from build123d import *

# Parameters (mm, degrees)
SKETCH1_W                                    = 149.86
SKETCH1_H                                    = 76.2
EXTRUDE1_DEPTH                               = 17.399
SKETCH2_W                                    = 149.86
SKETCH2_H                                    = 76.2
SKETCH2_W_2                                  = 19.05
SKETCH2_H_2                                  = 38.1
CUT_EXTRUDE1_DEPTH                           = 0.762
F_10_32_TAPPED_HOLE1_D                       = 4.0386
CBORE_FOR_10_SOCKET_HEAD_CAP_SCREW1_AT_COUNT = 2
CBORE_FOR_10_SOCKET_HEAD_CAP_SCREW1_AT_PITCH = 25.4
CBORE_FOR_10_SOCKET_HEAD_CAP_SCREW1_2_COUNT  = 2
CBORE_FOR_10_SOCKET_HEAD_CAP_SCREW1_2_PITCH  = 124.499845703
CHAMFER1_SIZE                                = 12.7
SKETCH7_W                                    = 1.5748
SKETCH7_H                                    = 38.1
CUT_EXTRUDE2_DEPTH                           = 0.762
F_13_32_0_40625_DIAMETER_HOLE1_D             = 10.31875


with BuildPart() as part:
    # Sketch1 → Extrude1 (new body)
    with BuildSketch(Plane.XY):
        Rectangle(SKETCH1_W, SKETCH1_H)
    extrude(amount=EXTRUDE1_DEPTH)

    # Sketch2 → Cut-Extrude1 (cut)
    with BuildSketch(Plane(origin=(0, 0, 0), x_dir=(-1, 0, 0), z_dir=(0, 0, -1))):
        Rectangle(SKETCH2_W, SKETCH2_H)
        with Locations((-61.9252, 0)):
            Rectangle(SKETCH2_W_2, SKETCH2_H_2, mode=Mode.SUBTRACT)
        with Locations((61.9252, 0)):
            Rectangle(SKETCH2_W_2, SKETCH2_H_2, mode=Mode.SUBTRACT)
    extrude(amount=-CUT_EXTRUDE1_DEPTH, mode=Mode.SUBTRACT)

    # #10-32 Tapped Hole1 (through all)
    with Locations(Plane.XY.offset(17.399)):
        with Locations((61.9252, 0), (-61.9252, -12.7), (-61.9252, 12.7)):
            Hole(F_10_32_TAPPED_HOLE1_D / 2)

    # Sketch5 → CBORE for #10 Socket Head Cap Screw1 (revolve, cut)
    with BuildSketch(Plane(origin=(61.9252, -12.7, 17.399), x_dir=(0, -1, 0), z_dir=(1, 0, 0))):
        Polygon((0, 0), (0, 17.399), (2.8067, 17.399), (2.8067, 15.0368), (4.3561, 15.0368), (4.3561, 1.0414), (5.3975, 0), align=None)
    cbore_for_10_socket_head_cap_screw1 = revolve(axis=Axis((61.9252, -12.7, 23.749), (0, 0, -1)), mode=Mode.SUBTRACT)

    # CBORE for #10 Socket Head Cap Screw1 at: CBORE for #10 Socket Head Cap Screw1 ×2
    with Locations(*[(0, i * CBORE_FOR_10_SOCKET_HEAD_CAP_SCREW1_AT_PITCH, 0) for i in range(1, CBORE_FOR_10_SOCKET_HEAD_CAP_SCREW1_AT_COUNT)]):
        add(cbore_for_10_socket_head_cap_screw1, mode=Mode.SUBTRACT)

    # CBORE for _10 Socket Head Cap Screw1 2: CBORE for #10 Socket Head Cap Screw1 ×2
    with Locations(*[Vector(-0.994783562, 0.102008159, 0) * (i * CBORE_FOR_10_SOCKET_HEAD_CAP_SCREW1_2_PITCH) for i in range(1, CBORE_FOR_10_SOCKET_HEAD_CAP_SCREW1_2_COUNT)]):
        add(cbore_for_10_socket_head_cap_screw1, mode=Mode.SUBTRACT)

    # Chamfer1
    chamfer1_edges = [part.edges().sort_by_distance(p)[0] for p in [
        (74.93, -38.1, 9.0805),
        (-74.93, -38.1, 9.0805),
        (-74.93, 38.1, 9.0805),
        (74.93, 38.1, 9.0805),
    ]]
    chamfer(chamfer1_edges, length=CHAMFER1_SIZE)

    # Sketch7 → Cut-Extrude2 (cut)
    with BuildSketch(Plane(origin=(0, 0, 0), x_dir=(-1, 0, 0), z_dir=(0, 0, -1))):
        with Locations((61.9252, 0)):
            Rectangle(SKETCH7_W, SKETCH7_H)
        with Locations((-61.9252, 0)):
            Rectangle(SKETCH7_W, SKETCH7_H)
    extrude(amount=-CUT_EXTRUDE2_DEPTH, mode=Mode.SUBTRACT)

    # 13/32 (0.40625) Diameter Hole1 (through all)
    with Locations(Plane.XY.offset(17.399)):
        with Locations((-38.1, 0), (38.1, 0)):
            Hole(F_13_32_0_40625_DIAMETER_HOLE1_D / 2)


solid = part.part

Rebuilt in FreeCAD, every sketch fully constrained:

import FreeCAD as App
import Part
import Sketcher
from FreeCAD import Vector
Q = App.Units.Quantity


def edges_at(feature, points):
    """Names of the edges that pass closest to the given points."""
    edges = feature.Shape.Edges
    near = lambda p: min(range(len(edges)), key=lambda i: edges[i].distToShape(Part.Vertex(*p))[0])
    return sorted({f"Edge{near(p) + 1}" for p in points})

doc = App.newDocument("Part")
body = doc.addObject("PartDesign::Body", "Body")

# Sketch on XY plane
sketch1 = doc.addObject("Sketcher::SketchObject", "Sketch")
body.addObject(sketch1)
sketch1.AttachmentSupport = (doc.XY_Plane, [""])
sketch1.MapMode = "FlatFace"
sketch1.addGeometry([
    Part.LineSegment(Vector(-75, 38, 0), Vector(-75, -38, 0)),
    Part.LineSegment(Vector(-75, -38, 0), Vector(75, -38, 0)),
    Part.LineSegment(Vector(75, -38, 0), Vector(75, 38, 0)),
    Part.LineSegment(Vector(75, 38, 0), Vector(-75, 38, 0)),
], False)
sketch1.addConstraint([
    Sketcher.Constraint("Coincident", 0, 2, 1, 1),
    Sketcher.Constraint("Coincident", 1, 2, 2, 1),
    Sketcher.Constraint("Coincident", 2, 2, 3, 1),
    Sketcher.Constraint("Coincident", 3, 2, 0, 1),
    Sketcher.Constraint("Vertical", 0),
    Sketcher.Constraint("Horizontal", 1),
    Sketcher.Constraint("Vertical", 2),
    Sketcher.Constraint("Horizontal", 3),
    Sketcher.Constraint("Symmetric", 0, 2, 2, 2, -1, 1),
    Sketcher.Constraint("DistanceY", 0, 2, 0, 1, Q("3 in")),
    Sketcher.Constraint("DistanceX", 1, 1, 1, 2, Q("5.9 in")),
])
pad1 = doc.addObject("PartDesign::Pad", "Pad")
body.addObject(pad1)
pad1.Profile = sketch1
pad1.Length = Q("0.685 in")

# Sketch on XY plane
sketch2 = doc.addObject("Sketcher::SketchObject", "Sketch001")
body.addObject(sketch2)
sketch2.AttachmentSupport = (doc.XY_Plane, [""])
sketch2.MapMode = "FlatFace"
sketch2.addGeometry([
    Part.LineSegment(Vector(75, 38, 0), Vector(75, -38, 0)),  # 0
    Part.LineSegment(Vector(75, -38, 0), Vector(-75, -38, 0)),  # 1
    Part.LineSegment(Vector(-75, -38, 0), Vector(-75, 38, 0)),  # 2
    Part.LineSegment(Vector(-75, 38, 0), Vector(75, 38, 0)),  # 3
    Part.LineSegment(Vector(52, -19, 0), Vector(71, -19, 0)),  # 4
    Part.LineSegment(Vector(71, -19, 0), Vector(71, 19, 0)),  # 5
    Part.LineSegment(Vector(71, 19, 0), Vector(52, 19, 0)),  # 6
    Part.LineSegment(Vector(52, 19, 0), Vector(52, -19, 0)),  # 7
    Part.LineSegment(Vector(-71, -19, 0), Vector(-52, -19, 0)),  # 8
    Part.LineSegment(Vector(-52, -19, 0), Vector(-52, 19, 0)),  # 9
    Part.LineSegment(Vector(-52, 19, 0), Vector(-71, 19, 0)),  # 10
    Part.LineSegment(Vector(-71, 19, 0), Vector(-71, -19, 0)),  # 11
], False)
sketch2.addConstraint([
    Sketcher.Constraint("Coincident", 0, 2, 1, 1),
    Sketcher.Constraint("Coincident", 1, 2, 2, 1),
    Sketcher.Constraint("Coincident", 2, 2, 3, 1),
    Sketcher.Constraint("Coincident", 3, 2, 0, 1),
    Sketcher.Constraint("Coincident", 4, 2, 5, 1),
    Sketcher.Constraint("Coincident", 5, 2, 6, 1),
    Sketcher.Constraint("Coincident", 6, 2, 7, 1),
    Sketcher.Constraint("Coincident", 7, 2, 4, 1),
    Sketcher.Constraint("Coincident", 8, 2, 9, 1),
    Sketcher.Constraint("Coincident", 9, 2, 10, 1),
    Sketcher.Constraint("Coincident", 10, 2, 11, 1),
    Sketcher.Constraint("Coincident", 11, 2, 8, 1),
    Sketcher.Constraint("Vertical", 0),
    Sketcher.Constraint("Horizontal", 1),
    Sketcher.Constraint("Vertical", 2),
    Sketcher.Constraint("Horizontal", 3),
    Sketcher.Constraint("Horizontal", 4),
    Sketcher.Constraint("Vertical", 5),
    Sketcher.Constraint("Horizontal", 6),
    Sketcher.Constraint("Vertical", 7),
    Sketcher.Constraint("Horizontal", 8),
    Sketcher.Constraint("Vertical", 9),
    Sketcher.Constraint("Horizontal", 10),
    Sketcher.Constraint("Vertical", 11),
    Sketcher.Constraint("Symmetric", 0, 2, 2, 2, -1, 1),
    Sketcher.Constraint("Symmetric", 6, 2, 8, 2, -1, 1),
    Sketcher.Constraint("Symmetric", 4, 2, 10, 2, -1, 1),
    Sketcher.Constraint("Horizontal", 7, 2, 8, 2),
    Sketcher.Constraint("DistanceY", 0, 2, 0, 1, Q("3 in")),
    Sketcher.Constraint("DistanceX", 1, 2, 1, 1, Q("5.9 in")),
    Sketcher.Constraint("DistanceY", 5, 1, 5, 2, Q("1.5 in")),
    Sketcher.Constraint("DistanceX", 4, 1, 4, 2, Q("0.75 in")),
    Sketcher.Constraint("DistanceX", -1, 1, 4, 2, Q("2.813 in")),
])
pocket1 = doc.addObject("PartDesign::Pocket", "Pocket")
body.addObject(pocket1)
pocket1.Profile = sketch2
pocket1.Length = Q("0.03 in")
pocket1.Reversed = True

# Sketch on XY plane
sketch3 = doc.addObject("Sketcher::SketchObject", "Sketch002")
body.addObject(sketch3)
sketch3.AttachmentSupport = (doc.XY_Plane, [""])
sketch3.MapMode = "FlatFace"
sketch3.AttachmentOffset = App.Placement(Vector(0, 0, 0.685 * 25.4), App.Rotation())
sketch3.addGeometry([
    Part.Circle(Vector(61.9, 0, 0), Vector(0, 0, 1), 2),
    Part.Circle(Vector(-61.9, -12.7, 0), Vector(0, 0, 1), 2),
    Part.Circle(Vector(-61.9, 12.7, 0), Vector(0, 0, 1), 2),
], False)
sketch3.addConstraint([
    Sketcher.Constraint("Equal", 0, 1),
    Sketcher.Constraint("Equal", 1, 2),
    Sketcher.Constraint("Symmetric", 1, 3, 2, 3, -1),
    Sketcher.Constraint("PointOnObject", 0, 3, -1),
    Sketcher.Constraint("Diameter", 0, Q("0.159 in")),
    Sketcher.Constraint("DistanceY", 1, 3, 2, 3, Q("1 in")),
    Sketcher.Constraint("DistanceX", -1, 1, 0, 3, Q("2.438 in")),
    Sketcher.Constraint("DistanceX", 1, 3, -1, 1, Q("2.438 in")),
])
doc.recompute()
hole = doc.addObject("PartDesign::Hole", "Hole")
body.addObject(hole)
hole.Profile = sketch3
hole.ThreadType = "None"
hole.Diameter = Q("0.159 in")
hole.DepthType = "ThroughAll"

# Sketch on YZ plane
sketch4 = doc.addObject("Sketcher::SketchObject", "Sketch003")
body.addObject(sketch4)
sketch4.AttachmentSupport = (doc.YZ_Plane, [""])
sketch4.MapMode = "FlatFace"
sketch4.AttachmentOffset = App.Placement(Vector(0, 0, 2.438 * 25.4), App.Rotation())
sketch4.addGeometry([
    Part.LineSegment(Vector(-12.7, 0, 0), Vector(-12.7, 17.4, 0)),  # 0
    Part.LineSegment(Vector(-12.7, 17.4, 0), Vector(-18.1, 17.4, 0)),  # 1
    Part.LineSegment(Vector(-18.1, 17.4, 0), Vector(-17.1, 16.4, 0)),  # 2
    Part.LineSegment(Vector(-17.1, 16.4, 0), Vector(-17.1, 2.4, 0)),  # 3
    Part.LineSegment(Vector(-17.1, 2.4, 0), Vector(-15.5, 2.4, 0)),  # 4
    Part.LineSegment(Vector(-15.5, 2.4, 0), Vector(-15.5, 0, 0)),  # 5
    Part.LineSegment(Vector(-15.5, 0, 0), Vector(-12.7, 0, 0)),  # 6
], False)
sketch4.addGeometry(Part.LineSegment(Vector(-12.7, 17.4, 0), Vector(-12.7, 0, 0)), True)  # axis
sketch4.addConstraint([
    Sketcher.Constraint("Coincident", 0, 2, 1, 1),
    Sketcher.Constraint("Coincident", 1, 2, 2, 1),
    Sketcher.Constraint("Coincident", 2, 2, 3, 1),
    Sketcher.Constraint("Coincident", 3, 2, 4, 1),
    Sketcher.Constraint("Coincident", 4, 2, 5, 1),
    Sketcher.Constraint("Coincident", 5, 2, 6, 1),
    Sketcher.Constraint("Coincident", 6, 2, 0, 1),
    Sketcher.Constraint("Vertical", 0),
    Sketcher.Constraint("Horizontal", 1),
    Sketcher.Constraint("Vertical", 3),
    Sketcher.Constraint("Horizontal", 4),
    Sketcher.Constraint("Vertical", 5),
    Sketcher.Constraint("Horizontal", 6),
    Sketcher.Constraint("Vertical", 7),
    Sketcher.Constraint("Coincident", 7, 1, 0, 2),
    Sketcher.Constraint("PointOnObject", 5, 2, -1),
    Sketcher.Constraint("PointOnObject", 7, 2, -1),
    Sketcher.Constraint("Angle", 2, Q("-45 deg")),
    Sketcher.Constraint("DistanceX", 0, 2, -1, 1, Q("0.5 in")),
    Sketcher.Constraint("DistanceX", 4, 1, 4, 2, Q("0.061 in")),
    Sketcher.Constraint("DistanceY", 0, 1, 0, 2, Q("0.685 in")),
    Sketcher.Constraint("DistanceY", 3, 2, 3, 1, Q("0.551 in")),
    Sketcher.Constraint("DistanceY", 5, 2, 5, 1, Q("0.093 in")),
    Sketcher.Constraint("DistanceX", 1, 2, 1, 1, Q("0.2125 in")),
])
groove = doc.addObject("PartDesign::Groove", "Groove")
body.addObject(groove)
groove.Profile = sketch4
groove.ReferenceAxis = (sketch4, ["Axis0"])
groove.Angle = 360
doc.recompute()

linearpattern = doc.addObject("PartDesign::LinearPattern", "LinearPattern")
body.addObject(linearpattern)
linearpattern.Originals = [groove]
linearpattern.Direction = (doc.Y_Axis, [""])
linearpattern.Mode = "offset"
linearpattern.Offset = Q("1 in")
linearpattern.Occurrences = 2
body.Tip = linearpattern
doc.recompute()

datumline = doc.addObject("PartDesign::Line", "DatumLine")
body.addObject(datumline)
datumline.Placement = App.Placement(Vector(0, 0, 0), App.Rotation(Vector(0, 0, 1), Vector(-0.994783562, 0.102008159, 0)))
linearpattern2 = doc.addObject("PartDesign::LinearPattern", "LinearPattern001")
body.addObject(linearpattern2)
linearpattern2.Originals = [groove]
linearpattern2.Direction = (datumline, [""])
linearpattern2.Mode = "offset"
linearpattern2.Offset = 124.499846
linearpattern2.Occurrences = 2
body.Tip = linearpattern2
doc.recompute()

chamfer = doc.addObject("PartDesign::Chamfer", "Chamfer")
body.addObject(chamfer)
chamfer.Base = (linearpattern2, edges_at(linearpattern2, [
    (74.93, -38.1, 9.081),
    (-74.93, -38.1, 9.081),
    (-74.93, 38.1, 9.081),
    (74.93, 38.1, 9.081),
]))
chamfer.Size = Q("0.5 in")

# Sketch on XY plane
sketch5 = doc.addObject("Sketcher::SketchObject", "Sketch004")
body.addObject(sketch5)
sketch5.AttachmentSupport = (doc.XY_Plane, [""])
sketch5.MapMode = "FlatFace"
sketch5.addGeometry([
    Part.LineSegment(Vector(-61.1, 19.1, 0), Vector(-61.1, -19.1, 0)),  # 0
    Part.LineSegment(Vector(-61.1, -19.1, 0), Vector(-62.7, -19.1, 0)),  # 1
    Part.LineSegment(Vector(-62.7, -19.1, 0), Vector(-62.7, 19.1, 0)),  # 2
    Part.LineSegment(Vector(-62.7, 19.1, 0), Vector(-61.1, 19.1, 0)),  # 3
    Part.LineSegment(Vector(62.7, 19.1, 0), Vector(62.7, -19.1, 0)),  # 4
    Part.LineSegment(Vector(62.7, -19.1, 0), Vector(61.1, -19.1, 0)),  # 5
    Part.LineSegment(Vector(61.1, -19.1, 0), Vector(61.1, 19.1, 0)),  # 6
    Part.LineSegment(Vector(61.1, 19.1, 0), Vector(62.7, 19.1, 0)),  # 7
], False)
sketch5.addConstraint([
    Sketcher.Constraint("Coincident", 0, 2, 1, 1),
    Sketcher.Constraint("Coincident", 1, 2, 2, 1),
    Sketcher.Constraint("Coincident", 2, 2, 3, 1),
    Sketcher.Constraint("Coincident", 3, 2, 0, 1),
    Sketcher.Constraint("Coincident", 4, 2, 5, 1),
    Sketcher.Constraint("Coincident", 5, 2, 6, 1),
    Sketcher.Constraint("Coincident", 6, 2, 7, 1),
    Sketcher.Constraint("Coincident", 7, 2, 4, 1),
    Sketcher.Constraint("Vertical", 0),
    Sketcher.Constraint("Horizontal", 1),
    Sketcher.Constraint("Vertical", 2),
    Sketcher.Constraint("Horizontal", 3),
    Sketcher.Constraint("Vertical", 4),
    Sketcher.Constraint("Horizontal", 5),
    Sketcher.Constraint("Vertical", 6),
    Sketcher.Constraint("Horizontal", 7),
    Sketcher.Constraint("Symmetric", 2, 2, 4, 2, -1, 1),
    Sketcher.Constraint("Symmetric", 0, 2, 6, 2, -1, 1),
    Sketcher.Constraint("Horizontal", 1, 2, 4, 2),
    Sketcher.Constraint("DistanceY", 0, 2, 0, 1, Q("1.5 in")),
    Sketcher.Constraint("DistanceX", 1, 2, 1, 1, Q("0.062 in")),
    Sketcher.Constraint("DistanceX", 0, 2, -1, 1, Q("2.407 in")),
])
pocket2 = doc.addObject("PartDesign::Pocket", "Pocket001")
body.addObject(pocket2)
pocket2.Profile = sketch5
pocket2.Length = Q("0.03 in")
pocket2.Reversed = True

# Sketch on XY plane
sketch6 = doc.addObject("Sketcher::SketchObject", "Sketch005")
body.addObject(sketch6)
sketch6.AttachmentSupport = (doc.XY_Plane, [""])
sketch6.MapMode = "FlatFace"
sketch6.AttachmentOffset = App.Placement(Vector(0, 0, 0.685 * 25.4), App.Rotation())
sketch6.addGeometry([
    Part.Circle(Vector(-38, 0, 0), Vector(0, 0, 1), 5),
    Part.Circle(Vector(38, 0, 0), Vector(0, 0, 1), 5),
], False)
sketch6.addConstraint([
    Sketcher.Constraint("Equal", 0, 1),
    Sketcher.Constraint("Symmetric", 0, 3, 1, 3, -1, 1),
    Sketcher.Constraint("PointOnObject", 0, 3, -1),
    Sketcher.Constraint("Diameter", 0, Q("0.40625 in")),
    Sketcher.Constraint("DistanceX", 0, 3, 1, 3, Q("3 in")),
])
doc.recompute()
hole2 = doc.addObject("PartDesign::Hole", "Hole001")
body.addObject(hole2)
hole2.Profile = sketch6
hole2.ThreadType = "None"
hole2.Diameter = Q("0.40625 in")
hole2.DepthType = "ThroughAll"

doc.recompute()
